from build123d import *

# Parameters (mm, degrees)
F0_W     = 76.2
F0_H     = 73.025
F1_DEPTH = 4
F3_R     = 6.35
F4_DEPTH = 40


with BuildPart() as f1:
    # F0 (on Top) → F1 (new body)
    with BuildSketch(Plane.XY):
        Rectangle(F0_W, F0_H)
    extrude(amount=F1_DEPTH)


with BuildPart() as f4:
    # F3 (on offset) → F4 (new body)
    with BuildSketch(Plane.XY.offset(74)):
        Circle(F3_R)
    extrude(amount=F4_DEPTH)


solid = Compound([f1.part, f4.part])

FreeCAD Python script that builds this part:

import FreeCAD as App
import Part
import Sketcher
Q = App.Units.Quantity


def add_polygon(sketch, points):
    """Adds a closed chain of lines whose ends are joined by coincident constraints."""
    first, n = sketch.GeometryCount, len(points)
    for a, b in zip(points, points[1:] + points[:1]):
        sketch.addGeometry(Part.LineSegment(App.Vector(*a, 0), App.Vector(*b, 0)), False)
    for i in range(n):
        sketch.addConstraint(Sketcher.Constraint("Coincident", first + i, 2, first + (i + 1) % n, 1))

doc = App.newDocument("Part")
body = doc.addObject("PartDesign::Body", "Body")

sketch1 = doc.addObject("Sketcher::SketchObject", "Sketch")
body.addObject(sketch1)
sketch1.AttachmentSupport = (doc.XY_Plane, [""])
sketch1.MapMode = "FlatFace"
add_polygon(sketch1, [(-38, 37), (-38, -37), (38, -37), (38, 37)])
sketch1.addConstraint(Sketcher.Constraint("Vertical", 0))
sketch1.addConstraint(Sketcher.Constraint("Horizontal", 1))
sketch1.addConstraint(Sketcher.Constraint("Vertical", 2))
sketch1.addConstraint(Sketcher.Constraint("Horizontal", 3))
sketch1.addConstraint(Sketcher.Constraint("Symmetric", 0, 2, 2, 2, -1, 1))
sketch1.addConstraint(Sketcher.Constraint("DistanceX", 1, 1, 1, 2, Q("3 in")))
sketch1.addConstraint(Sketcher.Constraint("DistanceY", 0, 2, 0, 1, Q("2.875 in")))
pad1 = doc.addObject("PartDesign::Pad", "Pad")
body.addObject(pad1)
pad1.Profile = sketch1
pad1.Length = 4
body2 = doc.addObject("PartDesign::Body", "Body001")

sketch2 = doc.addObject("Sketcher::SketchObject", "Sketch001")
body2.addObject(sketch2)
sketch2.AttachmentSupport = (doc.getObject("XY_Plane001"), [""])
sketch2.MapMode = "FlatFace"
sketch2.AttachmentOffset = App.Placement(App.Vector(0, 0, 74), App.Rotation())
sketch2.addGeometry(Part.Circle(App.Vector(0, 0, 0), App.Vector(0, 0, 1), 6), False)
sketch2.addConstraint(Sketcher.Constraint("Coincident", 0, 3, -1, 1))
sketch2.addConstraint(Sketcher.Constraint("Diameter", 0, Q("0.5 in")))
pad2 = doc.addObject("PartDesign::Pad", "Pad001")
body2.addObject(pad2)
pad2.Profile = sketch2
pad2.Length = 40

doc.recompute()
